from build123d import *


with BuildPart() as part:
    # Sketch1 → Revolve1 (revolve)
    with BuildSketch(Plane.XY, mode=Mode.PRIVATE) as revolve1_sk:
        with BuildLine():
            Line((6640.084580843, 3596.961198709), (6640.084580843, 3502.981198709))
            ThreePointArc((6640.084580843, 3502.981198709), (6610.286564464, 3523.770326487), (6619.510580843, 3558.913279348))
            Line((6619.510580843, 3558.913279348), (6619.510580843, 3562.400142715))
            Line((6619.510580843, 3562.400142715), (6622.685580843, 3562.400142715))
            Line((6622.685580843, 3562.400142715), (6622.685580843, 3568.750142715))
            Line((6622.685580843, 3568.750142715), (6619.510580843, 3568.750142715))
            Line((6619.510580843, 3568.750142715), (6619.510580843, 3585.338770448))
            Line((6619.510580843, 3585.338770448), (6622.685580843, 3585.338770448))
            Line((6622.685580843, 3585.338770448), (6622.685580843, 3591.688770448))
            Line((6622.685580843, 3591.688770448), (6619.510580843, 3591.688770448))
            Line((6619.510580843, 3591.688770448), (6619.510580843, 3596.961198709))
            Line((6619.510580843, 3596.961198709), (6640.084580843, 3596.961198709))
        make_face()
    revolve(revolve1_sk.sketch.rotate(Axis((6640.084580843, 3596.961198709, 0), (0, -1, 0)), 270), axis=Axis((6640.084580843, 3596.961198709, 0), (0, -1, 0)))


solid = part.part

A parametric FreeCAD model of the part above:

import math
import FreeCAD as App
import Part
import Sketcher

V = App.Vector
Q = App.Units.Quantity

doc = App.newDocument("Part")
body = doc.addObject("PartDesign::Body", "Body")

sketch1 = body.newObject("Sketcher::SketchObject", "Sketch")
sketch1.AttachmentSupport = (doc.getObject("XY_Plane"), [""])
sketch1.MapMode = "FlatFace"
sketch1.addGeometry(Part.LineSegment(V(6640.1, 3503, 0), V(6640.1, 3597, 0)), False)
sketch1.addGeometry(Part.LineSegment(V(6640.1, 3597, 0), V(6619.5, 3597, 0)), False)
sketch1.addGeometry(Part.LineSegment(V(6619.5, 3597, 0), V(6619.5, 3591.7, 0)), False)
sketch1.addGeometry(Part.LineSegment(V(6619.5, 3591.7, 0), V(6622.7, 3591.7, 0)), False)
sketch1.addGeometry(Part.LineSegment(V(6622.7, 3591.7, 0), V(6622.7, 3585.3, 0)), False)
sketch1.addGeometry(Part.LineSegment(V(6622.7, 3585.3, 0), V(6619.5, 3585.3, 0)), False)
sketch1.addGeometry(Part.LineSegment(V(6619.5, 3585.3, 0), V(6619.5, 3568.8, 0)), False)
sketch1.addGeometry(Part.LineSegment(V(6619.5, 3568.8, 0), V(6622.7, 3568.8, 0)), False)
sketch1.addGeometry(Part.LineSegment(V(6622.7, 3568.8, 0), V(6622.7, 3562.4, 0)), False)
sketch1.addGeometry(Part.LineSegment(V(6622.7, 3562.4, 0), V(6619.5, 3562.4, 0)), False)
sketch1.addGeometry(Part.LineSegment(V(6619.5, 3562.4, 0), V(6619.5, 3558.9, 0)), False)
sketch1.addGeometry(Part.ArcOfCircle(Part.Circle(V(6640.1, 3534.7, 0), V(0, 0, 1), 31.8), math.radians(130), math.radians(270)), False)
sketch1.addGeometry(Part.LineSegment(V(6640.1, 3597, 0), V(6640.1, 3503, 0)), True)
sketch1.addConstraint(Sketcher.Constraint("Coincident", 0, 2, 1, 1))
sketch1.addConstraint(Sketcher.Constraint("Coincident", 1, 2, 2, 1))
sketch1.addConstraint(Sketcher.Constraint("Coincident", 2, 2, 3, 1))
sketch1.addConstraint(Sketcher.Constraint("Coincident", 3, 2, 4, 1))
sketch1.addConstraint(Sketcher.Constraint("Coincident", 4, 2, 5, 1))
sketch1.addConstraint(Sketcher.Constraint("Coincident", 5, 2, 6, 1))
sketch1.addConstraint(Sketcher.Constraint("Coincident", 6, 2, 7, 1))
sketch1.addConstraint(Sketcher.Constraint("Coincident", 7, 2, 8, 1))
sketch1.addConstraint(Sketcher.Constraint("Coincident", 8, 2, 9, 1))
sketch1.addConstraint(Sketcher.Constraint("Coincident", 9, 2, 10, 1))
sketch1.addConstraint(Sketcher.Constraint("Coincident", 10, 2, 11, 1))
sketch1.addConstraint(Sketcher.Constraint("Coincident", 11, 2, 0, 1))
sketch1.addConstraint(Sketcher.Constraint("Vertical", 0))
sketch1.addConstraint(Sketcher.Constraint("Horizontal", 1))
sketch1.addConstraint(Sketcher.Constraint("Vertical", 2))
sketch1.addConstraint(Sketcher.Constraint("Horizontal", 3))
sketch1.addConstraint(Sketcher.Constraint("Vertical", 4))
sketch1.addConstraint(Sketcher.Constraint("Horizontal", 5))
sketch1.addConstraint(Sketcher.Constraint("Vertical", 6))
sketch1.addConstraint(Sketcher.Constraint("Horizontal", 7))
sketch1.addConstraint(Sketcher.Constraint("Vertical", 8))
sketch1.addConstraint(Sketcher.Constraint("Horizontal", 9))
sketch1.addConstraint(Sketcher.Constraint("Vertical", 10))
sketch1.addConstraint(Sketcher.Constraint("Vertical", 12))
sketch1.addConstraint(Sketcher.Constraint("Coincident", 12, 1, 0, 2))
sketch1.addConstraint(Sketcher.Constraint("Vertical", 11, 3, 0, 2))
sketch1.addConstraint(Sketcher.Constraint("Vertical", 2, 2, 5, 2))
sketch1.addConstraint(Sketcher.Constraint("Vertical", 4, 2, 7, 2))
sketch1.addConstraint(Sketcher.Constraint("Vertical", 6, 2, 9, 2))
sketch1.addConstraint(Sketcher.Constraint("Equal", 4, 8))
sketch1.addConstraint(Sketcher.Constraint("Equal", 0, 12))
sketch1.addConstraint(Sketcher.Constraint("Radius", 11, Q("1.25 in")))
sketch1.addConstraint(Sketcher.Constraint("DistanceY", 0, 1, 0, 2, Q("3.7 in")))
sketch1.addConstraint(Sketcher.Constraint("DistanceX", 1, 2, 1, 1, Q("0.81 in")))
sketch1.addConstraint(Sketcher.Constraint("DistanceY", 4, 2, 4, 1, Q("0.25 in")))
sketch1.addConstraint(Sketcher.Constraint("DistanceX", 3, 1, 3, 2, Q("0.125 in")))
sketch1.addConstraint(Sketcher.Constraint("DistanceY", 2, 2, 2, 1, Q("5.272428 mm")))
sketch1.addConstraint(Sketcher.Constraint("DistanceY", -1, 1, 11, 3, Q("3534.731199 mm")))
sketch1.addConstraint(Sketcher.Constraint("DistanceY", 6, 2, 6, 1, Q("16.588628 mm")))
sketch1.addConstraint(Sketcher.Constraint("DistanceX", -1, 1, 11, 3, Q("6640.084581 mm")))
revolution = body.newObject("PartDesign::Revolution", "Revolution")
revolution.Profile = sketch1
revolution.ReferenceAxis = (sketch1, ["Axis0"])
revolution.Angle = 360

doc.recompute()
